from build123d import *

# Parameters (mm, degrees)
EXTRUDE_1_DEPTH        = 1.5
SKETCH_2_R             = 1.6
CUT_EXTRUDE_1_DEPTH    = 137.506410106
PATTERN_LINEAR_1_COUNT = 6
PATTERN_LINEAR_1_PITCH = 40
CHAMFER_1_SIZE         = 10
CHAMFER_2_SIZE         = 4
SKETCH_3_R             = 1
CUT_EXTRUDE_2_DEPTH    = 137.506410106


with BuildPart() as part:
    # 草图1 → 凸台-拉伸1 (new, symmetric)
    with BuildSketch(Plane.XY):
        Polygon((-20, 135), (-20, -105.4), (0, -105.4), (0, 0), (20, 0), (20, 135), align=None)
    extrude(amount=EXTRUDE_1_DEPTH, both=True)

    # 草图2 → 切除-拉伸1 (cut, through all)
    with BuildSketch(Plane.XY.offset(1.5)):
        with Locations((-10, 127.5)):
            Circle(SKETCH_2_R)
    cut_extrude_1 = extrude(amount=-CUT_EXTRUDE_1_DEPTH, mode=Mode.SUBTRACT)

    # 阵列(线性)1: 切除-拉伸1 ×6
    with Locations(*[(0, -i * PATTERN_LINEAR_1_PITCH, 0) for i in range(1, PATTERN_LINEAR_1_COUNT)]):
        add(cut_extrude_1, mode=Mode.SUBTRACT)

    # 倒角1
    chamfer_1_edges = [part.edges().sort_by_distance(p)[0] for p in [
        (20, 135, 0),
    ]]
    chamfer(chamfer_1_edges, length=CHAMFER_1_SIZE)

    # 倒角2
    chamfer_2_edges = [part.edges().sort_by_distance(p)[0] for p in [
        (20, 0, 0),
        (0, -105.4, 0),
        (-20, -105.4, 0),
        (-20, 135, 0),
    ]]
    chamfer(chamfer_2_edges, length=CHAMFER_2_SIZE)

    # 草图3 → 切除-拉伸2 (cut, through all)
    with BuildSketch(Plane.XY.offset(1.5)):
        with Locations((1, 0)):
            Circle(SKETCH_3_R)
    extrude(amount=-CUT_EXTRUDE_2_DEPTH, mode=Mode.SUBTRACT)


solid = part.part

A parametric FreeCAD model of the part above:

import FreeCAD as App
import Part
import Sketcher


def edges_at(feature, points):
    """Names of the edges that pass closest to the given points."""
    edges = feature.Shape.Edges
    near = lambda p: min(range(len(edges)), key=lambda i: edges[i].distToShape(Part.Vertex(*p))[0])
    return sorted({f"Edge{near(p) + 1}" for p in points})


def add_polygon(sketch, points):
    """Adds a closed chain of lines whose ends are joined by coincident constraints."""
    first, n = sketch.GeometryCount, len(points)
    for a, b in zip(points, points[1:] + points[:1]):
        sketch.addGeometry(Part.LineSegment(App.Vector(*a, 0), App.Vector(*b, 0)), False)
    for i in range(n):
        sketch.addConstraint(Sketcher.Constraint("Coincident", first + i, 2, first + (i + 1) % n, 1))

doc = App.newDocument("Part")
body = doc.addObject("PartDesign::Body", "Body")

# Sketch on XY plane
sketch1 = body.newObject("Sketcher::SketchObject", "Sketch")
sketch1.AttachmentSupport = (doc.getObject("XY_Plane"), [""])
sketch1.MapMode = "FlatFace"
add_polygon(sketch1, [(-20, 135), (-20, -105), (0, -105), (0, 0), (20, 0), (20, 135)])  # lines 0-5
sketch1.addConstraint([
    Sketcher.Constraint("Vertical", 0),
    Sketcher.Constraint("Horizontal", 1),
    Sketcher.Constraint("Vertical", 2),
    Sketcher.Constraint("Horizontal", 3),
    Sketcher.Constraint("Vertical", 4),
    Sketcher.Constraint("Horizontal", 5),
    Sketcher.Constraint("Coincident", 2, 2, -1, 1),
    Sketcher.Constraint("Equal", 1, 3),
    Sketcher.Constraint("DistanceX", 1, 1, 1, 2, 20.0),
    Sketcher.Constraint("DistanceY", 4, 1, 4, 2, 135.0),
    Sketcher.Constraint("DistanceY", 0, 2, 0, 1, 240.4),
])
pad1 = body.newObject("PartDesign::Pad", "Pad")
pad1.Profile = sketch1
pad1.Length = 3
pad1.Midplane = True

# Sketch on XY plane
sketch2 = body.newObject("Sketcher::SketchObject", "Sketch001")
sketch2.AttachmentSupport = (doc.getObject("XY_Plane"), [""])
sketch2.MapMode = "FlatFace"
sketch2.AttachmentOffset = App.Placement(App.Vector(0, 0, 1.5), App.Rotation())
sketch2.addGeometry(Part.Circle(App.Vector(-10, 127.5, 0), App.Vector(0, 0, 1), 1.6), False)
sketch2.addConstraint([
    Sketcher.Constraint("Diameter", 0, 3.2),
    Sketcher.Constraint("DistanceX", 0, 3, -1, 1, 10.0),
    Sketcher.Constraint("DistanceY", -1, 1, 0, 3, 127.5),
])
pocket1 = body.newObject("PartDesign::Pocket", "Pocket")
pocket1.Profile = sketch2
pocket1.Type = "ThroughAll"
doc.recompute()

linearpattern = body.newObject("PartDesign::LinearPattern", "LinearPattern")
linearpattern.Originals = [pocket1]
linearpattern.Direction = (doc.getObject("Y_Axis"), [""])
linearpattern.Mode = "offset"
linearpattern.Offset = 40
linearpattern.Occurrences = 6
linearpattern.Reversed = True
body.Tip = linearpattern
doc.recompute()

chamfer = body.newObject("PartDesign::Chamfer", "Chamfer")
chamfer.Base = (linearpattern, edges_at(linearpattern, [(20, 135, 0)]))
chamfer.Size = 10
doc.recompute()

chamfer2 = body.newObject("PartDesign::Chamfer", "Chamfer001")
chamfer2.Base = (chamfer, edges_at(chamfer, [
    (20, 0, 0),
    (0, -105.4, 0),
    (-20, -105.4, 0),
    (-20, 135, 0),
]))
chamfer2.Size = 4

# Sketch on XY plane
sketch3 = body.newObject("Sketcher::SketchObject", "Sketch002")
sketch3.AttachmentSupport = (doc.getObject("XY_Plane"), [""])
sketch3.MapMode = "FlatFace"
sketch3.AttachmentOffset = App.Placement(App.Vector(0, 0, 1.5), App.Rotation())
sketch3.addGeometry(Part.Circle(App.Vector(1, 0, 0), App.Vector(0, 0, 1), 1), False)
sketch3.addConstraint([
    Sketcher.Constraint("PointOnObject", 0, 3, -1),
    Sketcher.Constraint("Diameter", 0, 2.0),
    Sketcher.Constraint("DistanceX", -1, 1, 0, 3, 1.0),
])
pocket2 = body.newObject("PartDesign::Pocket", "Pocket001")
pocket2.Profile = sketch3
pocket2.Type = "ThroughAll"

doc.recompute()
